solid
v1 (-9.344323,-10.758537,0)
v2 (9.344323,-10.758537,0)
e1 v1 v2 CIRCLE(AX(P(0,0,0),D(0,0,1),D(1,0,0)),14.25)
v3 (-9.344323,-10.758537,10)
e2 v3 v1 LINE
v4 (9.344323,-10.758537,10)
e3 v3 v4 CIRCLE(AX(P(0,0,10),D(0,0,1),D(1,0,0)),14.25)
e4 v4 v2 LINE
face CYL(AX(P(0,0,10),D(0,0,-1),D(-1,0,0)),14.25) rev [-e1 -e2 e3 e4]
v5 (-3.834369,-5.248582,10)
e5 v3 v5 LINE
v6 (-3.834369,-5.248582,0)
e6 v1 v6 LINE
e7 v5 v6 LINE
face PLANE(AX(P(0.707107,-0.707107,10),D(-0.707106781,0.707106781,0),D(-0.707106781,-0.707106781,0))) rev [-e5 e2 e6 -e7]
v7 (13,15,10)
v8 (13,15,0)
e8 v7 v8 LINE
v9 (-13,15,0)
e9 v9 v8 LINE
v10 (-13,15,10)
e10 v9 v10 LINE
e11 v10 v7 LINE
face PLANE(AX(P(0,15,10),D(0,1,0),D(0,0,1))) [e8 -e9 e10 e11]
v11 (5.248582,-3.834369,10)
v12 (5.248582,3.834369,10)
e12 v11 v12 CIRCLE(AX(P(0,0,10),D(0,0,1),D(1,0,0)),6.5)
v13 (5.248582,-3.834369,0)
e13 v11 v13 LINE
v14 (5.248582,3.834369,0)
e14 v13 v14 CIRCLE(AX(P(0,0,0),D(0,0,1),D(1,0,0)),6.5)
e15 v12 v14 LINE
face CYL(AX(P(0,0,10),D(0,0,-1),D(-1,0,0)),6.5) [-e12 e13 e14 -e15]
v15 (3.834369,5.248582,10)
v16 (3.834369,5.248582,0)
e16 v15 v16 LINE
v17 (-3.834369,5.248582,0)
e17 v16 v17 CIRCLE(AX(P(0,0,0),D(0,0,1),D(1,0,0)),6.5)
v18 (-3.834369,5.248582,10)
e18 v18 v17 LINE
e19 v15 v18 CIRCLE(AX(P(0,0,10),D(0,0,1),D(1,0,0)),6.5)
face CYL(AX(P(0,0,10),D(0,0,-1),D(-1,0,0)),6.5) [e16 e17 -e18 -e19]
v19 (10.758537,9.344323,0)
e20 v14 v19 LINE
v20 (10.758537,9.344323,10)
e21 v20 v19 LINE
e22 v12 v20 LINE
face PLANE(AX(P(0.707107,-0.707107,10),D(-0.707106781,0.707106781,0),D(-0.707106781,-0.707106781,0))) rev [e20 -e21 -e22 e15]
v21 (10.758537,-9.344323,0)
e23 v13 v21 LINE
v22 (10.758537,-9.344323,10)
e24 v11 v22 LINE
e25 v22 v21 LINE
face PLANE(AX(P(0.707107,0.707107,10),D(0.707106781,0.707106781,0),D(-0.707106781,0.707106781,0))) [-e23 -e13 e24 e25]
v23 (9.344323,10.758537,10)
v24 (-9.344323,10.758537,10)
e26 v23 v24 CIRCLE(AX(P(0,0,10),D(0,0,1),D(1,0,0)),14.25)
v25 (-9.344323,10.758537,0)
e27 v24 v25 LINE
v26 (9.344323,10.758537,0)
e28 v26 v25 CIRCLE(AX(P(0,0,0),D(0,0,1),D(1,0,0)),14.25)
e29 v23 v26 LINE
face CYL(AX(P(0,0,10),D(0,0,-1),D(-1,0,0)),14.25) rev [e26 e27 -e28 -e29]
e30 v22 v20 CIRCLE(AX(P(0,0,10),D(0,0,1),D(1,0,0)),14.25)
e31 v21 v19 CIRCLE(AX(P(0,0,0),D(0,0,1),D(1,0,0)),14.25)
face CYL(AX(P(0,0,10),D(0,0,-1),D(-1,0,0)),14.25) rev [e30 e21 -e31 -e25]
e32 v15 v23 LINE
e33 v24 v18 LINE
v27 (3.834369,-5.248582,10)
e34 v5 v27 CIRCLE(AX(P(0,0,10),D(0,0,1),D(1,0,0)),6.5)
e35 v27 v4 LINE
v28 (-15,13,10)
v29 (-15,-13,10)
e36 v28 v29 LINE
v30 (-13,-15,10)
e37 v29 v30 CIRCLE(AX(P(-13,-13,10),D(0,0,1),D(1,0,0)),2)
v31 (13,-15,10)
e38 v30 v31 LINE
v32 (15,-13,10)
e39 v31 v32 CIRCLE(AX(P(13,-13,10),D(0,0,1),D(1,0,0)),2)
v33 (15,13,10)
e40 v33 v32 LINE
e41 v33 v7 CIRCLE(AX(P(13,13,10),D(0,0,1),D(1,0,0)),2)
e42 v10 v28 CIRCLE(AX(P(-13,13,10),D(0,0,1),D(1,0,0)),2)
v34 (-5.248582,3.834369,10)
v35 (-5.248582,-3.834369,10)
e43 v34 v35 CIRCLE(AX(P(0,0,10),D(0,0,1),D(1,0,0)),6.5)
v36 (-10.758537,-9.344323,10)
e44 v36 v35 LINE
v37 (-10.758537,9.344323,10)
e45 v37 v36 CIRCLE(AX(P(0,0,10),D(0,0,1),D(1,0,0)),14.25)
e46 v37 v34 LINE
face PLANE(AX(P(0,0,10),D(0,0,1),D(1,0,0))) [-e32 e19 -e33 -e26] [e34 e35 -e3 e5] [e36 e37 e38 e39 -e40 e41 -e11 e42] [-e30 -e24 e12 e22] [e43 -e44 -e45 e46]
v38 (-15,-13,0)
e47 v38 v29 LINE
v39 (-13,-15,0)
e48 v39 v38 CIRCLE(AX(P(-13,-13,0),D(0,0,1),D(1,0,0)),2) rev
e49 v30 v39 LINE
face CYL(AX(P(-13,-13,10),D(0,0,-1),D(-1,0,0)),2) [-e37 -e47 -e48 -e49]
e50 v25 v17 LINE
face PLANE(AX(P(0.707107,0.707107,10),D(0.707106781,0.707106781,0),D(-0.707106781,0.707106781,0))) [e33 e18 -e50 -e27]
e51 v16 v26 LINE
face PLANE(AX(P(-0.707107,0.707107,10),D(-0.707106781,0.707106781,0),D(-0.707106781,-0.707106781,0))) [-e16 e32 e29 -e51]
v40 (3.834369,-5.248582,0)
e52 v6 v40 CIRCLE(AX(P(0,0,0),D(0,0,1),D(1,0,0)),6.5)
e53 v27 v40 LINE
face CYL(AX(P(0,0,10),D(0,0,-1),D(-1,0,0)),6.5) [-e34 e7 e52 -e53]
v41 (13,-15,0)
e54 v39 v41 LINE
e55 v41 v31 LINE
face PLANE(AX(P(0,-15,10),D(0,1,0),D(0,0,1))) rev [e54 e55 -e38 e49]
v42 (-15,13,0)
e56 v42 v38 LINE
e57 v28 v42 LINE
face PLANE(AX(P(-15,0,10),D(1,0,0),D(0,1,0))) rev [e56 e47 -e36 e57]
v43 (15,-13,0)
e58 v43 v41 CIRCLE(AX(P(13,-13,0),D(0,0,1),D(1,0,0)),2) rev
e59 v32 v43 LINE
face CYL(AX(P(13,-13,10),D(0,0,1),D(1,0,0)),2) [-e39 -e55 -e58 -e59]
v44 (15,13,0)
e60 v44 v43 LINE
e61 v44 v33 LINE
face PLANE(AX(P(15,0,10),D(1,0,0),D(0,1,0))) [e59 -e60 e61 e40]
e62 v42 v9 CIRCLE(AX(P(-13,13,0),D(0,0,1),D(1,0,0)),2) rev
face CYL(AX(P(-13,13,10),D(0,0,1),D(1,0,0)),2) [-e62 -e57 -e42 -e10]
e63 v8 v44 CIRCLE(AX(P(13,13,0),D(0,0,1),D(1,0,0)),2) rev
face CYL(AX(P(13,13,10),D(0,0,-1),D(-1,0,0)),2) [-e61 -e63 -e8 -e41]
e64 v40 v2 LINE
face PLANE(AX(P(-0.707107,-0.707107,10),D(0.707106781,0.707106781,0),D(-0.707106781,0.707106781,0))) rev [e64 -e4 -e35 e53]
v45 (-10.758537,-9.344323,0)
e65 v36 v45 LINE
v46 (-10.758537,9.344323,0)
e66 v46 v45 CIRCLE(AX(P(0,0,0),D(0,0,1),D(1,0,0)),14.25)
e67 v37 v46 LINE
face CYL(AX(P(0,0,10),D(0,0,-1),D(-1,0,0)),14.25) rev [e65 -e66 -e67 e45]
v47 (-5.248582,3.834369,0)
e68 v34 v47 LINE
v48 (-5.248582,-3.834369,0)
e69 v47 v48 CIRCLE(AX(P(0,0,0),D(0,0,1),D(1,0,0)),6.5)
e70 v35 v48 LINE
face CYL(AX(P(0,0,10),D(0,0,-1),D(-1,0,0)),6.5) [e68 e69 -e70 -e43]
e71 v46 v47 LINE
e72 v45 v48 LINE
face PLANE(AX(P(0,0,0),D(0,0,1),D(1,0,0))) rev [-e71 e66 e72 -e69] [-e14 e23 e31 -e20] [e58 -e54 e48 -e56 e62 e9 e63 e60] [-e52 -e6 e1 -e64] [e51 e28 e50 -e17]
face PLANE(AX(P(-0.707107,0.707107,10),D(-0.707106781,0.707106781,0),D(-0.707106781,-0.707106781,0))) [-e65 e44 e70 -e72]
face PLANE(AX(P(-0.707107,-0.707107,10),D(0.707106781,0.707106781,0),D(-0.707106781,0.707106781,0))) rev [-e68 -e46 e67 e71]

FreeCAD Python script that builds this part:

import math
import FreeCAD as App
import Part
import Sketcher

V = App.Vector
Q = App.Units.Quantity


def edges_at(feature, points):
    """Names of the edges that pass closest to the given points."""
    edges = feature.Shape.Edges
    near = lambda p: min(range(len(edges)), key=lambda i: edges[i].distToShape(Part.Vertex(*p))[0])
    return sorted({f"Edge{near(p) + 1}" for p in points})


def add_polygon(sketch, points):
    """Adds a closed chain of lines whose ends are joined by coincident constraints."""
    first, n = sketch.GeometryCount, len(points)
    for a, b in zip(points, points[1:] + points[:1]):
        sketch.addGeometry(Part.LineSegment(App.Vector(*a, 0), App.Vector(*b, 0)), False)
    for i in range(n):
        sketch.addConstraint(Sketcher.Constraint("Coincident", first + i, 2, first + (i + 1) % n, 1))

doc = App.newDocument("Part")
body = doc.addObject("PartDesign::Body", "Body")

sketch1 = body.newObject("Sketcher::SketchObject", "Sketch")
sketch1.AttachmentSupport = (doc.getObject("XY_Plane"), [""])
sketch1.MapMode = "FlatFace"
add_polygon(sketch1, [(-15, -15), (15, -15), (15, 15), (-15, 15)])
sketch1.addGeometry(Part.ArcOfCircle(Part.Circle(V(0, 0, 0), V(0, 0, 1), 14.25), math.radians(-130.975936), math.radians(-49.024064)), False)
sketch1.addGeometry(Part.LineSegment(V(-9.344323, -10.758537, 0), V(-3.834369, -5.248582, 0)), False)
sketch1.addGeometry(Part.ArcOfCircle(Part.Circle(V(0, 0, 0), V(0, 0, 1), 6.5), math.radians(-126.150117), math.radians(-53.849883)), False)
sketch1.addGeometry(Part.LineSegment(V(3.834369, -5.248582, 0), V(9.344323, -10.758537, 0)), False)
sketch1.addGeometry(Part.ArcOfCircle(Part.Circle(V(0, 0, 0), V(0, 0, 1), 6.5), math.radians(143.849883), math.radians(216.150117)), False)
sketch1.addGeometry(Part.LineSegment(V(-5.248582, -3.834369, 0), V(-10.758537, -9.344323, 0)), False)
sketch1.addGeometry(Part.ArcOfCircle(Part.Circle(V(0, 0, 0), V(0, 0, 1), 14.25), math.radians(139.024064), math.radians(220.975936)), False)
sketch1.addGeometry(Part.LineSegment(V(-10.758537, 9.344323, 0), V(-5.248582, 3.834369, 0)), False)
sketch1.addGeometry(Part.ArcOfCircle(Part.Circle(V(0, 0, 0), V(0, 0, 1), 14.25), math.radians(49.024064), math.radians(130.975936)), False)
sketch1.addGeometry(Part.LineSegment(V(9.344323, 10.758537, 0), V(3.834369, 5.248582, 0)), False)
sketch1.addGeometry(Part.ArcOfCircle(Part.Circle(V(0, 0, 0), V(0, 0, 1), 6.5), math.radians(53.849883), math.radians(126.150117)), False)
sketch1.addGeometry(Part.LineSegment(V(-3.834369, 5.248582, 0), V(-9.344323, 10.758537, 0)), False)
sketch1.addGeometry(Part.ArcOfCircle(Part.Circle(V(0, 0, 0), V(0, 0, 1), 14.25), math.radians(0), math.radians(40.975936)), False)
sketch1.addGeometry(Part.ArcOfCircle(Part.Circle(V(0, 0, 0), V(0, 0, 1), 14.25), math.radians(-40.975936), math.radians(0)), False)
sketch1.addGeometry(Part.LineSegment(V(10.758537, -9.344323, 0), V(5.248582, -3.834369, 0)), False)
sketch1.addGeometry(Part.ArcOfCircle(Part.Circle(V(0, 0, 0), V(0, 0, 1), 6.5), math.radians(-36.150117), math.radians(0)), False)
sketch1.addGeometry(Part.ArcOfCircle(Part.Circle(V(0, 0, 0), V(0, 0, 1), 6.5), math.radians(0), math.radians(36.150117)), False)
sketch1.addGeometry(Part.LineSegment(V(5.248582, 3.834369, 0), V(10.758537, 9.344323, 0)), False)
sketch1.addConstraint(Sketcher.Constraint("Coincident", 4, 1, 5, 1))
sketch1.addConstraint(Sketcher.Constraint("Coincident", 5, 2, 6, 1))
sketch1.addConstraint(Sketcher.Constraint("Coincident", 6, 2, 7, 1))
sketch1.addConstraint(Sketcher.Constraint("Coincident", 7, 2, 4, 2))
sketch1.addConstraint(Sketcher.Constraint("Coincident", 8, 2, 9, 1))
sketch1.addConstraint(Sketcher.Constraint("Coincident", 9, 2, 10, 2))
sketch1.addConstraint(Sketcher.Constraint("Coincident", 10, 1, 11, 1))
sketch1.addConstraint(Sketcher.Constraint("Coincident", 11, 2, 8, 1))
sketch1.addConstraint(Sketcher.Constraint("Coincident", 12, 1, 13, 1))
sketch1.addConstraint(Sketcher.Constraint("Coincident", 13, 2, 14, 1))
sketch1.addConstraint(Sketcher.Constraint("Coincident", 14, 2, 15, 1))
sketch1.addConstraint(Sketcher.Constraint("Coincident", 15, 2, 12, 2))
sketch1.addConstraint(Sketcher.Constraint("Tangent", 16, 1, 17, 2))
sketch1.addConstraint(Sketcher.Constraint("Coincident", 17, 1, 18, 1))
sketch1.addConstraint(Sketcher.Constraint("Coincident", 18, 2, 19, 1))
sketch1.addConstraint(Sketcher.Constraint("Tangent", 19, 2, 20, 1))
sketch1.addConstraint(Sketcher.Constraint("Coincident", 20, 2, 21, 1))
sketch1.addConstraint(Sketcher.Constraint("Coincident", 21, 2, 16, 2))
sketch1.addConstraint(Sketcher.Constraint("Horizontal", 0))
sketch1.addConstraint(Sketcher.Constraint("Vertical", 1))
sketch1.addConstraint(Sketcher.Constraint("Horizontal", 2))
sketch1.addConstraint(Sketcher.Constraint("Vertical", 3))
sketch1.addConstraint(Sketcher.Constraint("Coincident", 4, 3, -1, 1))
sketch1.addConstraint(Sketcher.Constraint("Coincident", 6, 3, -1, 1))
sketch1.addConstraint(Sketcher.Constraint("Coincident", 8, 3, -1, 1))
sketch1.addConstraint(Sketcher.Constraint("Coincident", 10, 3, -1, 1))
sketch1.addConstraint(Sketcher.Constraint("Coincident", 12, 3, -1, 1))
sketch1.addConstraint(Sketcher.Constraint("Coincident", 14, 3, -1, 1))
sketch1.addConstraint(Sketcher.Constraint("Coincident", 16, 3, -1, 1))
sketch1.addConstraint(Sketcher.Constraint("Coincident", 19, 3, -1, 1))
sketch1.addConstraint(Sketcher.Constraint("Equal", 6, 8))
sketch1.addConstraint(Sketcher.Constraint("Equal", 4, 10))
sketch1.addConstraint(Sketcher.Constraint("Equal", 10, 12))
sketch1.addConstraint(Sketcher.Constraint("Equal", 8, 14))
sketch1.addConstraint(Sketcher.Constraint("Equal", 12, 16))
sketch1.addConstraint(Sketcher.Constraint("Equal", 16, 17))
sketch1.addConstraint(Sketcher.Constraint("Equal", 14, 19))
sketch1.addConstraint(Sketcher.Constraint("Equal", 19, 20))
sketch1.addConstraint(Sketcher.Constraint("Symmetric", 0, 2, 2, 2, -1, 1))
sketch1.addConstraint(Sketcher.Constraint("PointOnObject", 16, 1, -1))
sketch1.addConstraint(Sketcher.Constraint("PointOnObject", 19, 2, -1))
sketch1.addConstraint(Sketcher.Constraint("Perpendicular", 5, 7))
sketch1.addConstraint(Sketcher.Constraint("Perpendicular", 7, 9))
sketch1.addConstraint(Sketcher.Constraint("Perpendicular", 9, 11))
sketch1.addConstraint(Sketcher.Constraint("Perpendicular", 11, 13))
sketch1.addConstraint(Sketcher.Constraint("Perpendicular", 13, 15))
sketch1.addConstraint(Sketcher.Constraint("Parallel", 15, 18))
sketch1.addConstraint(Sketcher.Constraint("Perpendicular", 18, 21))
sketch1.addConstraint(Sketcher.Constraint("Horizontal", 5, 2, 6, 2))
sketch1.addConstraint(Sketcher.Constraint("Horizontal", 4, 1, 7, 2))
sketch1.addConstraint(Sketcher.Constraint("Horizontal", 13, 2, 14, 2))
sketch1.addConstraint(Sketcher.Constraint("Horizontal", 9, 2, 17, 1))
sketch1.addConstraint(Sketcher.Constraint("Horizontal", 11, 2, 20, 2))
sketch1.addConstraint(Sketcher.Constraint("Vertical", 9, 2, 10, 1))
sketch1.addConstraint(Sketcher.Constraint("Vertical", 7, 2, 12, 1))
sketch1.addConstraint(Sketcher.Constraint("Equal", 2, 1))
sketch1.addConstraint(Sketcher.Constraint("Equal", 7, 9))
sketch1.addConstraint(Sketcher.Constraint("Radius", 6, Q("6.5 mm")))
sketch1.addConstraint(Sketcher.Constraint("DistanceX", 0, 1, 0, 2, Q("30 mm")))
sketch1.addConstraint(Sketcher.Constraint("Radius", 4, Q("14.25 mm")))
sketch1.addConstraint(Sketcher.Constraint("DistanceX", 5, 2, -1, 1, Q("3.834369 mm")))
pad1 = body.newObject("PartDesign::Pad", "Pad")
pad1.Profile = sketch1
pad1.Length = 10
doc.recompute()

fillet = body.newObject("PartDesign::Fillet", "Fillet")
fillet.Base = (pad1, edges_at(pad1, [
    (15, -15, 5),
    (-15, -15, 5),
    (-15, 15, 5),
    (15, 15, 5),
]))
fillet.Radius = 2

doc.recompute()
